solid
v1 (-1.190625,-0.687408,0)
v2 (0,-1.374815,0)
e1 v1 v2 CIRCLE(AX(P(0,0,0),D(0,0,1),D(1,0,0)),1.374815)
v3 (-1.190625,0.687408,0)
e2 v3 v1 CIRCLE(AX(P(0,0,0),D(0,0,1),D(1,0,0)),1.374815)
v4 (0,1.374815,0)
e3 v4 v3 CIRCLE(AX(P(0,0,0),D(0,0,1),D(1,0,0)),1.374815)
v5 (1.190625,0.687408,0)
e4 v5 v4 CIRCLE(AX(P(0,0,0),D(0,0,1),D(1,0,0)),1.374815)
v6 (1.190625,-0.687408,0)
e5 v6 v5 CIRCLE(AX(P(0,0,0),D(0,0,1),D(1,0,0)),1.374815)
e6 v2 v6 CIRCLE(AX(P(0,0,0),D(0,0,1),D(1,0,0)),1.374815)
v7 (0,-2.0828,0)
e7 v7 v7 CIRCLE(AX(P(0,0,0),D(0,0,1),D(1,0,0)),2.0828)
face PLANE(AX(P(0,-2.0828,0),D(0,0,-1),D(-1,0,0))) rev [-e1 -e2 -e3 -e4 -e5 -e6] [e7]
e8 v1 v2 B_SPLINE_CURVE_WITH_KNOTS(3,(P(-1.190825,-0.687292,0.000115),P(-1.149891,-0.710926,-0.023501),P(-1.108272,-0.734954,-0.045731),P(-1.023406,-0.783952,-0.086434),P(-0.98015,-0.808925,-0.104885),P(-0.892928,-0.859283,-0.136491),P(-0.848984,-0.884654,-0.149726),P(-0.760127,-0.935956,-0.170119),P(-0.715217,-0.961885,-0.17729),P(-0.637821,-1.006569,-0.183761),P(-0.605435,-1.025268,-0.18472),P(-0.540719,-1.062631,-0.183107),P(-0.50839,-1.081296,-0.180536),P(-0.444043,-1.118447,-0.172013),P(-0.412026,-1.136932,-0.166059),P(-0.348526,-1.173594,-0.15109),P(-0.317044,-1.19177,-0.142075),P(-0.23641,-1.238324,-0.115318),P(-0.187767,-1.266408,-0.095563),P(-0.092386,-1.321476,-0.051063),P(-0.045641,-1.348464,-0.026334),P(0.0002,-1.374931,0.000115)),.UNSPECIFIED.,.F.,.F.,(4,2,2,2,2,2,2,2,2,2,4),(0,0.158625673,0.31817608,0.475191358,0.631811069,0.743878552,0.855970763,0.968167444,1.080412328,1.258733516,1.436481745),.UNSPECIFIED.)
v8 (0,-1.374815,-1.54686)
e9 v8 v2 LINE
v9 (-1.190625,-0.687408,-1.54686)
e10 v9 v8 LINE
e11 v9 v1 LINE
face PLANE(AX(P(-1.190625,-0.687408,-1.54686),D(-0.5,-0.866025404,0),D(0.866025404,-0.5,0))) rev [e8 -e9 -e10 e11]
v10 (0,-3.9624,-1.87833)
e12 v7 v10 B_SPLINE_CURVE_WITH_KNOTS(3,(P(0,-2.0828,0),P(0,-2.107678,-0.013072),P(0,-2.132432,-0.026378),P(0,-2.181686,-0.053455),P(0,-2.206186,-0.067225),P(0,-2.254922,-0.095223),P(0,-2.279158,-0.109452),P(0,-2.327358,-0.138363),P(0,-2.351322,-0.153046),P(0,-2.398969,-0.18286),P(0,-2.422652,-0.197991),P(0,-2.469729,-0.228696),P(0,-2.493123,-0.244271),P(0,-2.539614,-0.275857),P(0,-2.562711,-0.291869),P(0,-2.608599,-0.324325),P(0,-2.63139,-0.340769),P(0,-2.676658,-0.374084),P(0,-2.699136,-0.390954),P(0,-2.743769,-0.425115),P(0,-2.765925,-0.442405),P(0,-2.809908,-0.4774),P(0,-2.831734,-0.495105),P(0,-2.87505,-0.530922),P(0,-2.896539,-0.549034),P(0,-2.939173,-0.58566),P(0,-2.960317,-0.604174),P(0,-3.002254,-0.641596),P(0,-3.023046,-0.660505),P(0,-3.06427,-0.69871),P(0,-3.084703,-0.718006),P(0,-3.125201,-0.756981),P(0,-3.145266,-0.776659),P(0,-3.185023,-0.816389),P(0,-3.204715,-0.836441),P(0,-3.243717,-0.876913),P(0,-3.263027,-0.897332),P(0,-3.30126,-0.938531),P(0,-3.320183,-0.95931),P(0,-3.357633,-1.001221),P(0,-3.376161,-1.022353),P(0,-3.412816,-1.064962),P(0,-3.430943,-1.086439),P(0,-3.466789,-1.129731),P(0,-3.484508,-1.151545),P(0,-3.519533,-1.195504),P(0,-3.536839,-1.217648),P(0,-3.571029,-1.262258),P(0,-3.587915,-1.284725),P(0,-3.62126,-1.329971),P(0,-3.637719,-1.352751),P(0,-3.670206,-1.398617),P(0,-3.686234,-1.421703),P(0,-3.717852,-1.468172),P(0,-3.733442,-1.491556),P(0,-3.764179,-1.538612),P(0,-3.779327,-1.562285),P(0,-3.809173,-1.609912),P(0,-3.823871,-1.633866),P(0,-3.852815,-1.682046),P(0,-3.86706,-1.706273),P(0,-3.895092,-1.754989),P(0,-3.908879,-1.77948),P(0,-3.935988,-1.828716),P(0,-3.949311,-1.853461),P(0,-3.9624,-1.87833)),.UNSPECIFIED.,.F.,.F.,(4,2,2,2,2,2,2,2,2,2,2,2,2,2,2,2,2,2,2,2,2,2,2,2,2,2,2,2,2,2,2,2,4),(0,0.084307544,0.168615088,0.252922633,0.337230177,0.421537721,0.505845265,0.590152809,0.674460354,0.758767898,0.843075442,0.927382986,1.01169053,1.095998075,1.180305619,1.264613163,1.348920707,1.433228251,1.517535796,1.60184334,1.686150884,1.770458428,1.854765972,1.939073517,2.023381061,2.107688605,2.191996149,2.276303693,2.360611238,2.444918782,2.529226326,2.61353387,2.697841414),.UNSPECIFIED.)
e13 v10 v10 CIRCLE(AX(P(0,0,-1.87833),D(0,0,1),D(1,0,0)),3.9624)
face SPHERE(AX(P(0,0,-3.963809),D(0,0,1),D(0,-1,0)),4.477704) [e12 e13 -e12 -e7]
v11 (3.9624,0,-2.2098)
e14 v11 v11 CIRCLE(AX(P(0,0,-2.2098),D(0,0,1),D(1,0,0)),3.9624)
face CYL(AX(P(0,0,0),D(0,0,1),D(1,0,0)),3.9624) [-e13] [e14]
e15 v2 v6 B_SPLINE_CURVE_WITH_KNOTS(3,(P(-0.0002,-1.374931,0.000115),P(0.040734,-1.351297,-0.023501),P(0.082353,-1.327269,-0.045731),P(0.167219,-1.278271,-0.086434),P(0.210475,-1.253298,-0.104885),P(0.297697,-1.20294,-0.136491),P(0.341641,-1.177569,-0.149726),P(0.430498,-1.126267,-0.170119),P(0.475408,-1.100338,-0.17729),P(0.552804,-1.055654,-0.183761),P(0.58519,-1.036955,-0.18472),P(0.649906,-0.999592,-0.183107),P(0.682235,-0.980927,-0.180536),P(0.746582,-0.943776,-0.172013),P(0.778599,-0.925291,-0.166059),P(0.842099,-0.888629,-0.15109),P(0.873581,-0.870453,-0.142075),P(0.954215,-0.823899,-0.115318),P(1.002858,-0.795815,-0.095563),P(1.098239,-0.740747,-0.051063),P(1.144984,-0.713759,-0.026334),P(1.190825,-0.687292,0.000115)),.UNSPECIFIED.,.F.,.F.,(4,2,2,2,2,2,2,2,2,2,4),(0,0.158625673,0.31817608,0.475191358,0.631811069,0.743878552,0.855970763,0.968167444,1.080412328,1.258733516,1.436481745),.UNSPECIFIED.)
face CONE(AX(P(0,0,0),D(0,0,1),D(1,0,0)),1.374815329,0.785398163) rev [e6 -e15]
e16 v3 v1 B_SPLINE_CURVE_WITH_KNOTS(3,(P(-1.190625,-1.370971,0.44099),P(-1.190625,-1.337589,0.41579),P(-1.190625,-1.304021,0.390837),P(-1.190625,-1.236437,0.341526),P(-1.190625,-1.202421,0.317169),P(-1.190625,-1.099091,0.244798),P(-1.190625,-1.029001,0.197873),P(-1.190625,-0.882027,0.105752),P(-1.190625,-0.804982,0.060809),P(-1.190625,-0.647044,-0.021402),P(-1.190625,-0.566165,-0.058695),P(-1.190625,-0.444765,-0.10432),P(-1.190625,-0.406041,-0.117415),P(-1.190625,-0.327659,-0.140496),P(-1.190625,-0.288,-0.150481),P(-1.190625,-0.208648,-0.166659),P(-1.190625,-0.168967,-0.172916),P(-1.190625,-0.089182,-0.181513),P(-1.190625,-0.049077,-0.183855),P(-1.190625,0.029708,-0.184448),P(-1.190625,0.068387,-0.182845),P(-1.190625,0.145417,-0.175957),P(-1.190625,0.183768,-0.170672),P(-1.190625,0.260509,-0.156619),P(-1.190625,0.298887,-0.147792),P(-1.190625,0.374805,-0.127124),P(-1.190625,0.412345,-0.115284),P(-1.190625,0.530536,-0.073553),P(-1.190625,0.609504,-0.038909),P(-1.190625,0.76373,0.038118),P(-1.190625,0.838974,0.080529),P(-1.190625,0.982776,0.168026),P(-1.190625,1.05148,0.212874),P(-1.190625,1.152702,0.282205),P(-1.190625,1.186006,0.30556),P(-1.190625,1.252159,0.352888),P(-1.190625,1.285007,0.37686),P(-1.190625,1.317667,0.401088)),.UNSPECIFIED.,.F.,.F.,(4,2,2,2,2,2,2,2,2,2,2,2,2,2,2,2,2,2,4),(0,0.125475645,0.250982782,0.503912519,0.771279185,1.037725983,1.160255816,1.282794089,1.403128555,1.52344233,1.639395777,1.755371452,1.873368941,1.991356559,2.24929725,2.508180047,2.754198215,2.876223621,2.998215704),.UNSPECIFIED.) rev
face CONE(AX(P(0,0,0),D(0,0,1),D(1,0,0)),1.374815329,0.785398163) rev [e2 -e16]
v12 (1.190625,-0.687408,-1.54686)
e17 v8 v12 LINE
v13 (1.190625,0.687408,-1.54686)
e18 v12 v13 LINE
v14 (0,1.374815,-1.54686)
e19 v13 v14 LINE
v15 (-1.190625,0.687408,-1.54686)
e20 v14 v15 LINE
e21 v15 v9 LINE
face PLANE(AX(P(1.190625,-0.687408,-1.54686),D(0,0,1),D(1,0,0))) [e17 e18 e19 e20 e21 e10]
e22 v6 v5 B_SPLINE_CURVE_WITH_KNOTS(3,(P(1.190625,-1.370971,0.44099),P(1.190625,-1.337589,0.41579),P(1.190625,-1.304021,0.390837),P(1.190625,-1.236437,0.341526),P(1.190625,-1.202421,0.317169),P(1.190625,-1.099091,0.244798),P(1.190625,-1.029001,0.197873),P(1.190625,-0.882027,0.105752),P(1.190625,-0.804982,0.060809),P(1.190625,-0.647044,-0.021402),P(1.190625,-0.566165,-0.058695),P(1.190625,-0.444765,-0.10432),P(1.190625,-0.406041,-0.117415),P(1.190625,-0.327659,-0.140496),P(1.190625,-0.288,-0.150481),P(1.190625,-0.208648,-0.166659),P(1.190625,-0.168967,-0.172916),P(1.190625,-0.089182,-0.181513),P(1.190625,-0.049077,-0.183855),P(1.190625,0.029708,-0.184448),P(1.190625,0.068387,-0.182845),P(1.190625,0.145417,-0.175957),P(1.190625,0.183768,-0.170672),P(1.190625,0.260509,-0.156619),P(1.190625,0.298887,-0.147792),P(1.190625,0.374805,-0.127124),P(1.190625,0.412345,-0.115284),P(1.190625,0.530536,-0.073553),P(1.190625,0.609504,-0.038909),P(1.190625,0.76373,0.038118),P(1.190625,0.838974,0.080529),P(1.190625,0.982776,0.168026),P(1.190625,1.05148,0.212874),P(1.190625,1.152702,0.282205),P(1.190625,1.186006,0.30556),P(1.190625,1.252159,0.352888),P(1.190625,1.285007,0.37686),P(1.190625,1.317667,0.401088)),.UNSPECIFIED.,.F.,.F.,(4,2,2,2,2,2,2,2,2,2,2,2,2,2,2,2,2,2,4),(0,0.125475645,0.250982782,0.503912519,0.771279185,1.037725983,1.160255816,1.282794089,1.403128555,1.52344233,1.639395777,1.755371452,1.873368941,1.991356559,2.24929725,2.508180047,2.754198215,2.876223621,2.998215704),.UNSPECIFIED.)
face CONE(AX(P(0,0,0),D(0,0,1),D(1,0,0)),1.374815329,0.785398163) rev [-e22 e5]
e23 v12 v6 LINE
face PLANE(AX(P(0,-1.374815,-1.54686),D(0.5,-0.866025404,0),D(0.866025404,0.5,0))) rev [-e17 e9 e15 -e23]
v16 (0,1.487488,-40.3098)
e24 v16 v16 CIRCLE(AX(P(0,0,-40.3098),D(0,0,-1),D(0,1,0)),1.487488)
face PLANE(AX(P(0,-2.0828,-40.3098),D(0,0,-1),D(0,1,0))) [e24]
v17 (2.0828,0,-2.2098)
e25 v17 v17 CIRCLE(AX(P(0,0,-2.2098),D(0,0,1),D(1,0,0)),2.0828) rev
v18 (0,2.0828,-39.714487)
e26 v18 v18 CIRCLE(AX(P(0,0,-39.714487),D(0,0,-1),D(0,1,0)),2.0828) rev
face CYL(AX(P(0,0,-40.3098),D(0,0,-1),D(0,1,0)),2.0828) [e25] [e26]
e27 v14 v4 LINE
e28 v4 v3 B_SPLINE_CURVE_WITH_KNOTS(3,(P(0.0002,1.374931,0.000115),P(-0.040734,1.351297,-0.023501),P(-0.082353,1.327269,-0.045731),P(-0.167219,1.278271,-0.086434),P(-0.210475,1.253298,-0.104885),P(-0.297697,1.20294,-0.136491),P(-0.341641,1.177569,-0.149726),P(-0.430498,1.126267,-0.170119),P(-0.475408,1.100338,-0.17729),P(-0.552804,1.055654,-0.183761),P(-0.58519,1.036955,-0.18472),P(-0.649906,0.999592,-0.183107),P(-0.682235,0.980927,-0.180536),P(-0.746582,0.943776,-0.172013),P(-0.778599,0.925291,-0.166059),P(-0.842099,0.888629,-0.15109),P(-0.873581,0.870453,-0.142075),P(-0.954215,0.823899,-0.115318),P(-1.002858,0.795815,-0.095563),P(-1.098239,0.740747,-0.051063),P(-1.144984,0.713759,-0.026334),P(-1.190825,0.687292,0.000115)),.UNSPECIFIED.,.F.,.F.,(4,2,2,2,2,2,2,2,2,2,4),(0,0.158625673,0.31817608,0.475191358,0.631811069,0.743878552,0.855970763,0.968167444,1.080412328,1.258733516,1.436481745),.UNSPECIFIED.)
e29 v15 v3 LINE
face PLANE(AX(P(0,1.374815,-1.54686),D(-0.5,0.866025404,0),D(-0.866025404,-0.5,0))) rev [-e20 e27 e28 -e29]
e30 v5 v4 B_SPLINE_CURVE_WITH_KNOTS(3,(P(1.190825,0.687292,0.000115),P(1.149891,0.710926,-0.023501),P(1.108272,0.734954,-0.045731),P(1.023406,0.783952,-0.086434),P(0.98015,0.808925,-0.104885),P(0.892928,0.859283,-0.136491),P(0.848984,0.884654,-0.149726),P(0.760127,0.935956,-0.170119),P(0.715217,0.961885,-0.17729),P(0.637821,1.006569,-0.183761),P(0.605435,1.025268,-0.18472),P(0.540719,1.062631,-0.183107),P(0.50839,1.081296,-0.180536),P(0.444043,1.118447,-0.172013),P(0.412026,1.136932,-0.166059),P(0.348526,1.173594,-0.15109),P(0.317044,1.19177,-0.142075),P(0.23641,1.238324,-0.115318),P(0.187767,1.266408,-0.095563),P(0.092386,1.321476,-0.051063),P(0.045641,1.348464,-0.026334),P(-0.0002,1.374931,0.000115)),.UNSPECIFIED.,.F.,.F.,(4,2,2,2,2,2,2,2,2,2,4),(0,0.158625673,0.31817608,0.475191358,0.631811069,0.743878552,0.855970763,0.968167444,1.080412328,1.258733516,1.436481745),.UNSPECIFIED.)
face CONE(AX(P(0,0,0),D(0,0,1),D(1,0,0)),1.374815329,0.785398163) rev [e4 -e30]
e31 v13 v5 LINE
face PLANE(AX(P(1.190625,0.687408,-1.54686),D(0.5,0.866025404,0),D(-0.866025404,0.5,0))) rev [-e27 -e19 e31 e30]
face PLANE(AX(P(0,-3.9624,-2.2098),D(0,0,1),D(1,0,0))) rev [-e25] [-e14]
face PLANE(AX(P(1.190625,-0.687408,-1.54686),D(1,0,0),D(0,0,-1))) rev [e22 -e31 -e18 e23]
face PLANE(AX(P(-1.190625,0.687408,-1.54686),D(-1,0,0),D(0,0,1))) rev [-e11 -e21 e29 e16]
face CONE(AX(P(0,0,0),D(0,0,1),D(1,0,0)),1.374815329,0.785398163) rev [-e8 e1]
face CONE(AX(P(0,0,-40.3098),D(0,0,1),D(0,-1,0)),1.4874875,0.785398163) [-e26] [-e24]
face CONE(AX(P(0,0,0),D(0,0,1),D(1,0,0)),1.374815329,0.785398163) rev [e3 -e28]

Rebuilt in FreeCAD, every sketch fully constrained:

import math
import FreeCAD as App
import Part
import Sketcher

V = App.Vector
Q = App.Units.Quantity


def edges_at(feature, points):
    """Names of the edges that pass closest to the given points."""
    edges = feature.Shape.Edges
    near = lambda p: min(range(len(edges)), key=lambda i: edges[i].distToShape(Part.Vertex(*p))[0])
    return sorted({f"Edge{near(p) + 1}" for p in points})


def add_polygon(sketch, points):
    """Adds a closed chain of lines whose ends are joined by coincident constraints."""
    first, n = sketch.GeometryCount, len(points)
    for a, b in zip(points, points[1:] + points[:1]):
        sketch.addGeometry(Part.LineSegment(App.Vector(*a, 0), App.Vector(*b, 0)), False)
    for i in range(n):
        sketch.addConstraint(Sketcher.Constraint("Coincident", first + i, 2, first + (i + 1) % n, 1))

doc = App.newDocument("Part")
body = doc.addObject("PartDesign::Body", "Body")

# Sketch on YZ plane
sketch1 = body.newObject("Sketcher::SketchObject", "Sketch")
sketch1.AttachmentSupport = (doc.getObject("YZ_Plane"), [""])
sketch1.MapMode = "FlatFace"
add_polygon(sketch1, [(2.0828, -2.2098), (0, -2.2098), (0, -40.3098), (2.0828, -40.3098)])  # lines 0-3
sketch1.addConstraint(Sketcher.Constraint("Horizontal", 0))
sketch1.addConstraint(Sketcher.Constraint("Vertical", 1))
sketch1.addConstraint(Sketcher.Constraint("Horizontal", 2))
sketch1.addConstraint(Sketcher.Constraint("Vertical", 3))
sketch1.addConstraint(Sketcher.Constraint("PointOnObject", 0, 2, -2))
sketch1.addConstraint(Sketcher.Constraint("DistanceY", 1, 2, 1, 1, Q("1.5 in")))
sketch1.addConstraint(Sketcher.Constraint("DistanceX", 0, 2, 0, 1, Q("0.082 in")))
sketch1.addConstraint(Sketcher.Constraint("DistanceY", 0, 2, -1, 1, Q("0.087 in")))
revolution = body.newObject("PartDesign::Revolution", "Revolution")
revolution.Profile = sketch1
revolution.ReferenceAxis = (sketch1, ["V_Axis"])
revolution.Angle = 360
doc.recompute()

chamfer = body.newObject("PartDesign::Chamfer", "Chamfer")
chamfer.Base = (revolution, edges_at(revolution, [(0, -2.083, -40.31)]))
chamfer.Size = 0.595313

# Sketch on YZ plane
sketch2 = body.newObject("Sketcher::SketchObject", "Sketch001")
sketch2.AttachmentSupport = (doc.getObject("YZ_Plane"), [""])
sketch2.MapMode = "FlatFace"
sketch2.addGeometry(Part.LineSegment(V(3.9624, -2.2098, 0), V(3.9624, -1.87833, 0)), False)
sketch2.addGeometry(Part.ArcOfCircle(Part.Circle(V(0, -3.963809, 0), V(0, 0, 1), 4.477704), math.radians(27.758597), math.radians(62.280129)), False)
sketch2.addGeometry(Part.LineSegment(V(2.0828, 0, 0), V(0, 0, 0)), False)
sketch2.addGeometry(Part.LineSegment(V(0, 0, 0), V(0, -2.2098, 0)), False)
sketch2.addGeometry(Part.LineSegment(V(0, -2.2098, 0), V(3.9624, -2.2098, 0)), False)
sketch2.addConstraint(Sketcher.Constraint("Coincident", 0, 2, 1, 1))
sketch2.addConstraint(Sketcher.Constraint("Coincident", 1, 2, 2, 1))
sketch2.addConstraint(Sketcher.Constraint("Coincident", 2, 2, 3, 1))
sketch2.addConstraint(Sketcher.Constraint("Coincident", 3, 2, 4, 1))
sketch2.addConstraint(Sketcher.Constraint("Coincident", 4, 2, 0, 1))
sketch2.addConstraint(Sketcher.Constraint("Vertical", 0))
sketch2.addConstraint(Sketcher.Constraint("Horizontal", 2))
sketch2.addConstraint(Sketcher.Constraint("Vertical", 3))
sketch2.addConstraint(Sketcher.Constraint("Horizontal", 4))
sketch2.addConstraint(Sketcher.Constraint("Coincident", 2, 2, -1, 1))
sketch2.addConstraint(Sketcher.Constraint("PointOnObject", 1, 3, -2))
sketch2.addConstraint(Sketcher.Constraint("DistanceX", 2, 2, 2, 1, Q("0.082 in")))
sketch2.addConstraint(Sketcher.Constraint("DistanceX", 4, 1, 4, 2, Q("0.156 in")))
sketch2.addConstraint(Sketcher.Constraint("DistanceY", 3, 2, 3, 1, Q("0.087 in")))
sketch2.addConstraint(Sketcher.Constraint("Radius", 1, Q("4.477704 mm")))
revolution2 = body.newObject("PartDesign::Revolution", "Revolution001")
revolution2.Profile = sketch2
revolution2.ReferenceAxis = (sketch2, ["V_Axis"])
revolution2.Angle = 360

# Sketch on XY plane
sketch3 = body.newObject("Sketcher::SketchObject", "Sketch002")
sketch3.AttachmentSupport = (doc.getObject("XY_Plane"), [""])
sketch3.MapMode = "FlatFace"
add_polygon(sketch3, [(1.190625, -0.687408), (1.190625, 0.687408), (0, 1.374815), (-1.190625, 0.687408), (-1.190625, -0.687408), (0, -1.374815)])  # lines 0-5
sketch3.addConstraint(Sketcher.Constraint("Vertical", 0))
sketch3.addConstraint(Sketcher.Constraint("Vertical", 3))
sketch3.addConstraint(Sketcher.Constraint("Symmetric", 0, 2, 3, 2, -1, 1))
sketch3.addConstraint(Sketcher.Constraint("Symmetric", 1, 2, 4, 2, -1, 1))
sketch3.addConstraint(Sketcher.Constraint("PointOnObject", 1, 2, -2))
sketch3.addConstraint(Sketcher.Constraint("Parallel", 2, 5))
sketch3.addConstraint(Sketcher.Constraint("Horizontal", 0, 2, 2, 2))
sketch3.addConstraint(Sketcher.Constraint("Angle", 1, Q("150 deg")))
sketch3.addConstraint(Sketcher.Constraint("DistanceX", -1, 1, 0, 2, Q("0.046875 in")))
sketch3.addConstraint(Sketcher.Constraint("DistanceY", 0, 1, 0, 2, Q("1.374815 mm")))
pocket1 = body.newObject("PartDesign::Pocket", "Pocket")
pocket1.Profile = sketch3
pocket1.Length = Q("0.0609 in")

# Sketch on YZ plane
sketch4 = body.newObject("Sketcher::SketchObject", "Sketch003")
sketch4.AttachmentSupport = (doc.getObject("YZ_Plane"), [""])
sketch4.MapMode = "FlatFace"
add_polygon(sketch4, [(0, 0), (-1.374815, 0), (0, -1.374815)])  # lines 0-2
sketch4.addConstraint(Sketcher.Constraint("Horizontal", 0))
sketch4.addConstraint(Sketcher.Constraint("Vertical", 2))
sketch4.addConstraint(Sketcher.Constraint("Coincident", 2, 2, -1, 1))
sketch4.addConstraint(Sketcher.Constraint("Equal", 0, 2))
sketch4.addConstraint(Sketcher.Constraint("DistanceX", 0, 2, 0, 1, Q("1.374815 mm")))
groove = body.newObject("PartDesign::Groove", "Groove")
groove.Profile = sketch4
groove.ReferenceAxis = (sketch4, ["V_Axis"])
groove.Angle = 360

doc.recompute()
